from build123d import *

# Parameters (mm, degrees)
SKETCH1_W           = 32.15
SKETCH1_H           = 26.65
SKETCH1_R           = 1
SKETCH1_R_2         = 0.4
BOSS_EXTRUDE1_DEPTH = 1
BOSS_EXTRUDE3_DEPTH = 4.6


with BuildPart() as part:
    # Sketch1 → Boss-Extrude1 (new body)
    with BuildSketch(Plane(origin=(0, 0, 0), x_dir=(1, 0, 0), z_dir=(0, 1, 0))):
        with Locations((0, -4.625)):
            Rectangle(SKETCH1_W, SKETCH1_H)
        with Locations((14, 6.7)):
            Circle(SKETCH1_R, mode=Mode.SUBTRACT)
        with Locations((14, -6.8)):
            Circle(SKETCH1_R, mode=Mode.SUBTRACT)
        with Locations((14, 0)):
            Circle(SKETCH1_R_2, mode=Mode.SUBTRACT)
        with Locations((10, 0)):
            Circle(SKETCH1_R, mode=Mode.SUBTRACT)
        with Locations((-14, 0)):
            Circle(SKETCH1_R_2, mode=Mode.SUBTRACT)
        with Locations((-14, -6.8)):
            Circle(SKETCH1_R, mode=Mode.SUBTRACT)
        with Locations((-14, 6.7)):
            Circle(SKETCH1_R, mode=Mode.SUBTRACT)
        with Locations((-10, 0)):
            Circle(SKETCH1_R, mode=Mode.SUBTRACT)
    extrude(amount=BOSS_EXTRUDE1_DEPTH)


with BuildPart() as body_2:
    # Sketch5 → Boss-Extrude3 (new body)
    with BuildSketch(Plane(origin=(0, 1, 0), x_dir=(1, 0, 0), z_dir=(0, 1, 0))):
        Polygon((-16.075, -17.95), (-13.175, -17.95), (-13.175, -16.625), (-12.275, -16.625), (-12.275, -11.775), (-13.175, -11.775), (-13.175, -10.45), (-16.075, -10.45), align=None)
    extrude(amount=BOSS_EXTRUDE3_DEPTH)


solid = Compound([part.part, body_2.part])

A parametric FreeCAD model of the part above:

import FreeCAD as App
import Part
import Sketcher


def add_polygon(sketch, points):
    """Adds a closed chain of lines whose ends are joined by coincident constraints."""
    first, n = sketch.GeometryCount, len(points)
    for a, b in zip(points, points[1:] + points[:1]):
        sketch.addGeometry(Part.LineSegment(App.Vector(*a, 0), App.Vector(*b, 0)), False)
    for i in range(n):
        sketch.addConstraint(Sketcher.Constraint("Coincident", first + i, 2, first + (i + 1) % n, 1))

doc = App.newDocument("Part")
body = doc.addObject("PartDesign::Body", "Body")

# Sketch on XZ plane
sketch1 = body.newObject("Sketcher::SketchObject", "Sketch")
sketch1.AttachmentSupport = (doc.getObject("XZ_Plane"), [""])
sketch1.MapMode = "FlatFace"
add_polygon(sketch1, [(-16.07, -8.7), (-16.07, 17.95), (16.07, 17.95), (16.07, -8.7)])  # lines 0-3
sketch1.addGeometry(Part.Circle(App.Vector(-14, 6.8, 0), App.Vector(0, 0, 1), 1), False)  # 4
sketch1.addGeometry(Part.Circle(App.Vector(14, 6.8, 0), App.Vector(0, 0, 1), 1), False)  # 5
sketch1.addGeometry(Part.Circle(App.Vector(-14, 0, 0), App.Vector(0, 0, 1), 0.4), False)  # 6
sketch1.addGeometry(Part.Circle(App.Vector(-10, 0, 0), App.Vector(0, 0, 1), 1), False)  # 7
sketch1.addGeometry(Part.Circle(App.Vector(-14, -6.7, 0), App.Vector(0, 0, 1), 1), False)  # 8
sketch1.addGeometry(Part.Circle(App.Vector(10, 0, 0), App.Vector(0, 0, 1), 1), False)  # 9
sketch1.addGeometry(Part.Circle(App.Vector(14, 0, 0), App.Vector(0, 0, 1), 0.4), False)  # 10
sketch1.addGeometry(Part.Circle(App.Vector(14, -6.7, 0), App.Vector(0, 0, 1), 1), False)  # 11
sketch1.addConstraint([
    Sketcher.Constraint("Vertical", 0),
    Sketcher.Constraint("Horizontal", 1),
    Sketcher.Constraint("Vertical", 2),
    Sketcher.Constraint("Horizontal", 3),
    Sketcher.Constraint("Equal", 4, 5),
    Sketcher.Constraint("Equal", 5, 7),
    Sketcher.Constraint("Equal", 7, 8),
    Sketcher.Constraint("Equal", 8, 9),
    Sketcher.Constraint("Equal", 6, 10),
    Sketcher.Constraint("Equal", 9, 11),
    Sketcher.Constraint("Symmetric", 7, 3, 9, 3, -1, 1),
    Sketcher.Constraint("Symmetric", 6, 3, 10, 3, -1, 1),
    Sketcher.Constraint("Symmetric", 4, 3, 5, 3, -2),
    Sketcher.Constraint("Symmetric", 8, 3, 11, 3, -2),
    Sketcher.Constraint("PointOnObject", 6, 3, -1),
    Sketcher.Constraint("PointOnObject", 7, 3, -1),
    Sketcher.Constraint("Vertical", 4, 3, 6, 3),
    Sketcher.Constraint("Vertical", 6, 3, 8, 3),
    Sketcher.Constraint("Diameter", 4, 2.0),
    Sketcher.Constraint("Diameter", 6, 0.8),
    Sketcher.Constraint("DistanceX", 4, 3, -1, 1, 14.0),
    Sketcher.Constraint("DistanceX", 7, 3, -1, 1, 10.0),
    Sketcher.Constraint("DistanceY", 2, 2, 11, 3, 2.0),
    Sketcher.Constraint("DistanceX", 1, 1, 1, 2, 32.15),
    Sketcher.Constraint("DistanceY", 0, 1, 0, 2, 26.65),
    Sketcher.Constraint("DistanceY", -1, 1, 4, 3, 6.8),
    Sketcher.Constraint("DistanceY", 8, 3, -1, 1, 6.7),
    Sketcher.Constraint("DistanceX", 0, 2, -1, 1, 16.075),
])
pad1 = body.newObject("PartDesign::Pad", "Pad")
pad1.Profile = sketch1
pad1.Length = 1
pad1.Reversed = True
body2 = doc.addObject("PartDesign::Body", "Body001")

# Sketch on XZ plane
sketch2 = body2.newObject("Sketcher::SketchObject", "Sketch001")
sketch2.AttachmentSupport = (doc.getObject("XZ_Plane001"), [""])
sketch2.MapMode = "FlatFace"
sketch2.AttachmentOffset = App.Placement(App.Vector(0, 0, -1), App.Rotation())
add_polygon(sketch2, [(-16.1, 17.9), (-13.2, 17.9), (-13.2, 16.6), (-12.3, 16.6), (-12.3, 11.8), (-13.2, 11.8), (-13.2, 10.4), (-16.1, 10.4)])  # lines 0-7
sketch2.addConstraint([
    Sketcher.Constraint("Horizontal", 0),
    Sketcher.Constraint("Vertical", 1),
    Sketcher.Constraint("Horizontal", 2),
    Sketcher.Constraint("Vertical", 3),
    Sketcher.Constraint("Horizontal", 4),
    Sketcher.Constraint("Vertical", 5),
    Sketcher.Constraint("Horizontal", 6),
    Sketcher.Constraint("Vertical", 7),
    Sketcher.Constraint("Vertical", 1, 2, 4, 2),
    Sketcher.Constraint("Equal", 1, 5),
    Sketcher.Constraint("DistanceX", 0, 1, 0, 2, 2.9),
    Sketcher.Constraint("DistanceX", 2, 1, 2, 2, 0.9),
    Sketcher.Constraint("DistanceY", 7, 1, 7, 2, 7.5),
    Sketcher.Constraint("DistanceY", 3, 2, 3, 1, 4.85),
    Sketcher.Constraint("DistanceY", -1, 1, 0, 2, 17.95),
    Sketcher.Constraint("DistanceX", 0, 2, -1, 1, 13.175),
])
pad2 = body2.newObject("PartDesign::Pad", "Pad001")
pad2.Profile = sketch2
pad2.Length = 4.6
pad2.Reversed = True

doc.recompute()
